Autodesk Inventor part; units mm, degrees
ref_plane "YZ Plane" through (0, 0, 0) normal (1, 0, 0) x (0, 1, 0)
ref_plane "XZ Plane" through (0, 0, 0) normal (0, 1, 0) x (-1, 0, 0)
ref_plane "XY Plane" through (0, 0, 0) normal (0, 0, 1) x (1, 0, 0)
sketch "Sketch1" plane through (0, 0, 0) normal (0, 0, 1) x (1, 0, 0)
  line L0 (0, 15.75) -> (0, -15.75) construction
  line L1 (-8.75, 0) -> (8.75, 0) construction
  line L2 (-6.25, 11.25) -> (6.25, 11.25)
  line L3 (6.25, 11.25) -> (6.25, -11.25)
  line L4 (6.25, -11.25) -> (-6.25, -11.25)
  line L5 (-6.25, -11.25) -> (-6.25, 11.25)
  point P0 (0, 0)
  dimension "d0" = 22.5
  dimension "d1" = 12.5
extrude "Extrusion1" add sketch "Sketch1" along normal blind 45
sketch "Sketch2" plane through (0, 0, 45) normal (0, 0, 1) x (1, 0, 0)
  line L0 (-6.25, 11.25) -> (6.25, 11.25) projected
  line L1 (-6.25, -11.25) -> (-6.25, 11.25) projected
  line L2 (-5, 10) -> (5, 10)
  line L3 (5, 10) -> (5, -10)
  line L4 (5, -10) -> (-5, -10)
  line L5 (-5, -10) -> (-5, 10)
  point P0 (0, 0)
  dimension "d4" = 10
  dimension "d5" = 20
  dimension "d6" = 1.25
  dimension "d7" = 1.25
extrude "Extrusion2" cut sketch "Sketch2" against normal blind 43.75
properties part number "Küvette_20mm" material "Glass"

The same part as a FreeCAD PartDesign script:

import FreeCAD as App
import Part
import Sketcher

V = App.Vector


def add_polygon(sketch, points):
    """Adds a closed chain of lines whose ends are joined by coincident constraints."""
    first, n = sketch.GeometryCount, len(points)
    for a, b in zip(points, points[1:] + points[:1]):
        sketch.addGeometry(Part.LineSegment(App.Vector(*a, 0), App.Vector(*b, 0)), False)
    for i in range(n):
        sketch.addConstraint(Sketcher.Constraint("Coincident", first + i, 2, first + (i + 1) % n, 1))

doc = App.newDocument("Part")
params = doc.addObject("Spreadsheet::Sheet", "Params")
for row, (alias, value) in enumerate([
    ("sketch1_width", "12.5 mm"),
    ("sketch1_height", "22.5 mm"),
    ("pad1_length", "45 mm"),
    ("sketch2_width", "10 mm"),
    ("sketch2_height", "20 mm"),
    ("pocket1_length", "43.75 mm"),
], start=1):
    params.set(f"A{row}", alias)
    params.set(f"B{row}", "=" + value)
    params.setAlias(f"B{row}", alias)

body = doc.addObject("PartDesign::Body", "Body")

sketch1 = body.newObject("Sketcher::SketchObject", "Sketch")
sketch1.AttachmentSupport = (doc.getObject("XY_Plane"), [""])
sketch1.MapMode = "FlatFace"
add_polygon(sketch1, [(6, 11), (-6, 11), (-6, -11), (6, -11)])
sketch1.addConstraint(Sketcher.Constraint("Horizontal", 0))
sketch1.addConstraint(Sketcher.Constraint("Vertical", 1))
sketch1.addConstraint(Sketcher.Constraint("Horizontal", 2))
sketch1.addConstraint(Sketcher.Constraint("Vertical", 3))
sketch1.addConstraint(Sketcher.Constraint("Symmetric", 0, 2, 2, 2, -1, 1))
sketch1.addConstraint(Sketcher.Constraint("DistanceX", 0, 2, 0, 1, 12.5))
sketch1.addConstraint(Sketcher.Constraint("DistanceY", 1, 2, 1, 1, 22.5))
sketch1.setExpression("Constraints[9]", "Params.sketch1_width")
sketch1.setExpression("Constraints[10]", "Params.sketch1_height")
pad1 = body.newObject("PartDesign::Pad", "Pad")
pad1.Profile = sketch1
pad1.setExpression("Length", "Params.pad1_length")

sketch2 = body.newObject("Sketcher::SketchObject", "Sketch001")
sketch2.AttachmentSupport = (doc.getObject("XY_Plane"), [""])
sketch2.MapMode = "FlatFace"
sketch2.AttachmentOffset = App.Placement(V(0, 0, 45), App.Rotation())
add_polygon(sketch2, [(5, 10), (-5, 10), (-5, -10), (5, -10)])
sketch2.addConstraint(Sketcher.Constraint("Horizontal", 0))
sketch2.addConstraint(Sketcher.Constraint("Vertical", 1))
sketch2.addConstraint(Sketcher.Constraint("Horizontal", 2))
sketch2.addConstraint(Sketcher.Constraint("Vertical", 3))
sketch2.addConstraint(Sketcher.Constraint("Symmetric", 0, 2, 2, 2, -1, 1))
sketch2.addConstraint(Sketcher.Constraint("DistanceX", 0, 2, 0, 1, 10.0))
sketch2.addConstraint(Sketcher.Constraint("DistanceY", 1, 2, 1, 1, 20.0))
sketch2.setExpression("Constraints[9]", "Params.sketch2_width")
sketch2.setExpression("Constraints[10]", "Params.sketch2_height")
pocket1 = body.newObject("PartDesign::Pocket", "Pocket")
pocket1.Profile = sketch2
pocket1.setExpression("Length", "Params.pocket1_length")

doc.recompute()
